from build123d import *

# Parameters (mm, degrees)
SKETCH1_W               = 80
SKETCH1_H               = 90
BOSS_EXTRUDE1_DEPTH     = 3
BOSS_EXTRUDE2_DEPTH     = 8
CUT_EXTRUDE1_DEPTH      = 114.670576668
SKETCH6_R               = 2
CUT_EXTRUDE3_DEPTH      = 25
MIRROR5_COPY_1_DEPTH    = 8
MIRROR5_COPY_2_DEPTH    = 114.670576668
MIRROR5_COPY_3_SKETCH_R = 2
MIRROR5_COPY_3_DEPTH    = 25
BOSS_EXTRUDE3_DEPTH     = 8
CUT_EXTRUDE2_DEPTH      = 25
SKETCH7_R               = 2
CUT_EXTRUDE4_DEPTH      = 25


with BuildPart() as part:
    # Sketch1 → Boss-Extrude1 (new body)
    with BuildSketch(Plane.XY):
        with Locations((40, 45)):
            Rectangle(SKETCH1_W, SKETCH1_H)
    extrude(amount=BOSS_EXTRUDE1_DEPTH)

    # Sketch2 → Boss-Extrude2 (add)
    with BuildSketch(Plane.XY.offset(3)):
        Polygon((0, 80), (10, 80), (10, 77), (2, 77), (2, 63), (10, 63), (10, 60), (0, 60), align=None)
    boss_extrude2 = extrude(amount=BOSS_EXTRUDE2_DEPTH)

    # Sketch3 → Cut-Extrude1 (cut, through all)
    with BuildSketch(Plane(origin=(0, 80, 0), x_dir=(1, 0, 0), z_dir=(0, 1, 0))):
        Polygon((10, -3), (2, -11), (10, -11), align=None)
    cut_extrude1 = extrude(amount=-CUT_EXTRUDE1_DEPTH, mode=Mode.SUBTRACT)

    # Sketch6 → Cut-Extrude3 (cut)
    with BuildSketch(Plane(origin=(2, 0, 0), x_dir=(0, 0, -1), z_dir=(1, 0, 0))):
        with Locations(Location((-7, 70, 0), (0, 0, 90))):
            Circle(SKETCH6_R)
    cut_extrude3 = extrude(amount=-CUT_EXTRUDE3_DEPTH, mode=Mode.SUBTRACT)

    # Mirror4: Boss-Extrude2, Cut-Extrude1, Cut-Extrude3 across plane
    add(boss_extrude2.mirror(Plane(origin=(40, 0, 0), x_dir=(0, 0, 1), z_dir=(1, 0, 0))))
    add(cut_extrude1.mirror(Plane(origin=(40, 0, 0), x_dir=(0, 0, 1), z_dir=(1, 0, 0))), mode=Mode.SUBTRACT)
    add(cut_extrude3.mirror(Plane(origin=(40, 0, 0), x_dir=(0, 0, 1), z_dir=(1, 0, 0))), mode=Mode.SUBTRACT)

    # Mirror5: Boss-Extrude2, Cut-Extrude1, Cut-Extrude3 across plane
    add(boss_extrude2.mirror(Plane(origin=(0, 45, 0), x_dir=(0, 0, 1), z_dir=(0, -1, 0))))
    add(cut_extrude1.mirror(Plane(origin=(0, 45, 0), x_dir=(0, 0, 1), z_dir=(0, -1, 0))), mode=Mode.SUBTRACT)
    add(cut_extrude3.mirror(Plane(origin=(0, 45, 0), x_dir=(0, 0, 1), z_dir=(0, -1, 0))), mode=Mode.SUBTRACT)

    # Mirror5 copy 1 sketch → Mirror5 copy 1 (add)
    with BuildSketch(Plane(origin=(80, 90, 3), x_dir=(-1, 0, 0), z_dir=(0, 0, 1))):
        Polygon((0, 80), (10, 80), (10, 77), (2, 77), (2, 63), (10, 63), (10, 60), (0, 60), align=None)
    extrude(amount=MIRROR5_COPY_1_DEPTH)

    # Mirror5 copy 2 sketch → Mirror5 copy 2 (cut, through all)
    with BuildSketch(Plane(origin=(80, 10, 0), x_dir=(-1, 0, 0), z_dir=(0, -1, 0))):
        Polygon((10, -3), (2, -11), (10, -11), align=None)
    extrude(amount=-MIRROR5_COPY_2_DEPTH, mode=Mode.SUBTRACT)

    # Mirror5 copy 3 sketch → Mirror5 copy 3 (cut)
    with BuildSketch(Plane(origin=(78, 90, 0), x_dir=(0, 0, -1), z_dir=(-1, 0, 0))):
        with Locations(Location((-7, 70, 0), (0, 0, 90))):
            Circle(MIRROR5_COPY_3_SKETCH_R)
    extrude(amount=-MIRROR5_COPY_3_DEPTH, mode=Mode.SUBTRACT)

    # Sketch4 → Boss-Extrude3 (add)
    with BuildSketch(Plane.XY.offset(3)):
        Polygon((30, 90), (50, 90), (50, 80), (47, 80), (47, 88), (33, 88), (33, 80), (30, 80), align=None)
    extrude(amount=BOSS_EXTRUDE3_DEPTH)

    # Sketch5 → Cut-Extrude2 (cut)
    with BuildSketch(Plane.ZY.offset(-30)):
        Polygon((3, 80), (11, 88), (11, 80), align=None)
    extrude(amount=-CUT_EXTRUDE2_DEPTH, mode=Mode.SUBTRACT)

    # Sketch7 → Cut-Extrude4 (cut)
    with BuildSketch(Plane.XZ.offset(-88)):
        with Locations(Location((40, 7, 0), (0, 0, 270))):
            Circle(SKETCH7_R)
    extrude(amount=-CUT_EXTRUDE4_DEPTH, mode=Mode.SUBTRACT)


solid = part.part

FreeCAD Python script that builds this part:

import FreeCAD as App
import Part
import Sketcher

V = App.Vector
Q = App.Units.Quantity


def add_polygon(sketch, points):
    """Adds a closed chain of lines whose ends are joined by coincident constraints."""
    first, n = sketch.GeometryCount, len(points)
    for a, b in zip(points, points[1:] + points[:1]):
        sketch.addGeometry(Part.LineSegment(App.Vector(*a, 0), App.Vector(*b, 0)), False)
    for i in range(n):
        sketch.addConstraint(Sketcher.Constraint("Coincident", first + i, 2, first + (i + 1) % n, 1))

doc = App.newDocument("Part")
params = doc.addObject("Spreadsheet::Sheet", "Params")
for row, (alias, value) in enumerate([
    ("sketch1_width", "80 mm"),
    ("sketch1_height", "90 mm"),
    ("pad1_length", "3 mm"),
    ("sketch2_width", "10 mm"),
    ("sketch2_width2", "8 mm"),
    ("sketch2_height", "20 mm"),
    ("sketch2_height2", "3 mm"),
    ("pad2_length", "8 mm"),
    ("sketch3_width", "8 mm"),
    ("sketch4_diameter", "4 mm"),
    ("pocket2_length", "25 mm"),
    ("sketch5_width", "10 mm"),
    ("sketch5_width2", "8 mm"),
    ("sketch5_height", "20 mm"),
    ("sketch5_height2", "3 mm"),
    ("pad3_length", "8 mm"),
    ("sketch6_width", "8 mm"),
    ("sketch7_diameter", "4 mm"),
    ("pocket4_length", "25 mm"),
    ("sketch8_width", "20 mm"),
    ("sketch8_width2", "3 mm"),
    ("sketch8_height", "10 mm"),
    ("sketch8_height2", "8 mm"),
    ("pad4_length", "8 mm"),
    ("sketch9_width", "8 mm"),
    ("pocket5_length", "25 mm"),
    ("sketch10_diameter", "4 mm"),
    ("pocket6_length", "25 mm"),
], start=1):
    params.set(f"A{row}", alias)
    params.set(f"B{row}", "=" + value)
    params.setAlias(f"B{row}", alias)

body = doc.addObject("PartDesign::Body", "Body")

sketch1 = body.newObject("Sketcher::SketchObject", "Sketch")
sketch1.AttachmentSupport = (doc.getObject("XY_Plane"), [""])
sketch1.MapMode = "FlatFace"
add_polygon(sketch1, [(0, 90), (0, 0), (80, 0), (80, 90)])
sketch1.addConstraint([
    Sketcher.Constraint("Vertical", 0),
    Sketcher.Constraint("Horizontal", 1),
    Sketcher.Constraint("Vertical", 2),
    Sketcher.Constraint("Horizontal", 3),
    Sketcher.Constraint("Coincident", 0, 2, -1, 1),
    Sketcher.Constraint("DistanceX", 1, 1, 1, 2, Q("80 mm")),
    Sketcher.Constraint("DistanceY", 0, 2, 0, 1, Q("90 mm")),
])
sketch1.setExpression("Constraints[9]", "Params.sketch1_width")
sketch1.setExpression("Constraints[10]", "Params.sketch1_height")
pad1 = body.newObject("PartDesign::Pad", "Pad")
pad1.Profile = sketch1
pad1.setExpression("Length", "Params.pad1_length")

sketch2 = body.newObject("Sketcher::SketchObject", "Sketch001")
sketch2.AttachmentSupport = (doc.getObject("XY_Plane"), [""])
sketch2.MapMode = "FlatFace"
sketch2.AttachmentOffset = App.Placement(V(0, 0, 3), App.Rotation())
add_polygon(sketch2, [(10, 80), (0, 80), (0, 60), (10, 60), (10, 63), (2, 63), (2, 77), (10, 77)])
sketch2.addConstraint([
    Sketcher.Constraint("Horizontal", 0),
    Sketcher.Constraint("Vertical", 1),
    Sketcher.Constraint("Horizontal", 2),
    Sketcher.Constraint("Vertical", 3),
    Sketcher.Constraint("Horizontal", 4),
    Sketcher.Constraint("Vertical", 5),
    Sketcher.Constraint("Horizontal", 6),
    Sketcher.Constraint("Vertical", 7),
    Sketcher.Constraint("PointOnObject", 0, 2, -2),
    Sketcher.Constraint("Vertical", 3, 2, 6, 2),
    Sketcher.Constraint("Equal", 3, 7),
    Sketcher.Constraint("DistanceX", 0, 2, 0, 1, Q("10 mm")),
    Sketcher.Constraint("DistanceX", 4, 2, 4, 1, Q("8 mm")),
    Sketcher.Constraint("DistanceY", 1, 2, 1, 1, Q("20 mm")),
    Sketcher.Constraint("DistanceY", 3, 1, 3, 2, Q("3 mm")),
    Sketcher.Constraint("DistanceY", -1, 1, 0, 2, Q("80 mm")),
])
sketch2.setExpression("Constraints[19]", "Params.sketch2_width")
sketch2.setExpression("Constraints[20]", "Params.sketch2_width2")
sketch2.setExpression("Constraints[21]", "Params.sketch2_height")
sketch2.setExpression("Constraints[22]", "Params.sketch2_height2")
pad2 = body.newObject("PartDesign::Pad", "Pad001")
pad2.Profile = sketch2
pad2.setExpression("Length", "Params.pad2_length")

sketch3 = body.newObject("Sketcher::SketchObject", "Sketch002")
sketch3.AttachmentSupport = (doc.getObject("XZ_Plane"), [""])
sketch3.MapMode = "FlatFace"
sketch3.AttachmentOffset = App.Placement(V(0, 0, -80), App.Rotation())
add_polygon(sketch3, [(10, 3), (2, 11), (10, 11)])
sketch3.addConstraint([
    Sketcher.Constraint("Horizontal", 1),
    Sketcher.Constraint("Vertical", 2),
    Sketcher.Constraint("Equal", 1, 2),
    Sketcher.Constraint("DistanceX", 1, 1, 1, 2, Q("8 mm")),
    Sketcher.Constraint("DistanceX", -1, 1, 0, 2, Q("2 mm")),
    Sketcher.Constraint("DistanceY", -1, 1, 0, 2, Q("11 mm")),
])
sketch3.setExpression("Constraints[6]", "Params.sketch3_width")
pocket1 = body.newObject("PartDesign::Pocket", "Pocket")
pocket1.Profile = sketch3
pocket1.Type = "ThroughAll"
pocket1.Reversed = True

sketch4 = body.newObject("Sketcher::SketchObject", "Sketch003")
sketch4.AttachmentSupport = (doc.getObject("YZ_Plane"), [""])
sketch4.MapMode = "FlatFace"
sketch4.AttachmentOffset = App.Placement(V(0, 0, 2), App.Rotation())
sketch4.addGeometry(Part.Circle(V(70, 7, 0), V(0, 0, 1), 2), False)
sketch4.addConstraint([
    Sketcher.Constraint("Diameter", 0, Q("4 mm")),
    Sketcher.Constraint("DistanceX", -1, 1, 0, 3, Q("70 mm")),
    Sketcher.Constraint("DistanceY", -1, 1, 0, 3, Q("7 mm")),
])
sketch4.setExpression("Constraints[0]", "Params.sketch4_diameter")
pocket2 = body.newObject("PartDesign::Pocket", "Pocket001")
pocket2.Profile = sketch4
pocket2.setExpression("Length", "Params.pocket2_length")
doc.recompute()

datumplane = body.newObject("PartDesign::Plane", "DatumPlane")
datumplane.AttachmentSupport = (doc.getObject("YZ_Plane"), [""])
datumplane.MapMode = "FlatFace"
datumplane.AttachmentOffset = App.Placement(V(0, 0, 40), App.Rotation())
mirrored = body.newObject("PartDesign::Mirrored", "Mirrored")
mirrored.Originals = [pad2, pocket1, pocket2]
mirrored.MirrorPlane = (datumplane, [""])
body.Tip = mirrored
doc.recompute()

datumplane2 = body.newObject("PartDesign::Plane", "DatumPlane001")
datumplane2.AttachmentSupport = (doc.getObject("XZ_Plane"), [""])
datumplane2.MapMode = "FlatFace"
datumplane2.AttachmentOffset = App.Placement(V(0, 0, -45), App.Rotation())
mirrored2 = body.newObject("PartDesign::Mirrored", "Mirrored001")
mirrored2.Originals = [pad2, pocket1, pocket2]
mirrored2.MirrorPlane = (datumplane2, [""])
body.Tip = mirrored2

sketch5 = body.newObject("Sketcher::SketchObject", "Sketch004")
sketch5.AttachmentSupport = (doc.getObject("XY_Plane"), [""])
sketch5.MapMode = "FlatFace"
sketch5.AttachmentOffset = App.Placement(V(0, 0, 3), App.Rotation())
add_polygon(sketch5, [(70, 10), (80, 10), (80, 30), (70, 30), (70, 27), (78, 27), (78, 13), (70, 13)])
sketch5.addConstraint([
    Sketcher.Constraint("Horizontal", 0),
    Sketcher.Constraint("Vertical", 1),
    Sketcher.Constraint("Horizontal", 2),
    Sketcher.Constraint("Vertical", 3),
    Sketcher.Constraint("Horizontal", 4),
    Sketcher.Constraint("Vertical", 5),
    Sketcher.Constraint("Horizontal", 6),
    Sketcher.Constraint("Vertical", 7),
    Sketcher.Constraint("Vertical", 3, 2, 6, 2),
    Sketcher.Constraint("Equal", 3, 7),
    Sketcher.Constraint("DistanceX", 0, 1, 0, 2, Q("10 mm")),
    Sketcher.Constraint("DistanceX", 4, 1, 4, 2, Q("8 mm")),
    Sketcher.Constraint("DistanceY", 1, 1, 1, 2, Q("20 mm")),
    Sketcher.Constraint("DistanceY", 3, 2, 3, 1, Q("3 mm")),
    Sketcher.Constraint("DistanceX", -1, 1, 0, 2, Q("80 mm")),
    Sketcher.Constraint("DistanceY", -1, 1, 0, 2, Q("10 mm")),
])
sketch5.setExpression("Constraints[18]", "Params.sketch5_width")
sketch5.setExpression("Constraints[19]", "Params.sketch5_width2")
sketch5.setExpression("Constraints[20]", "Params.sketch5_height")
sketch5.setExpression("Constraints[21]", "Params.sketch5_height2")
pad3 = body.newObject("PartDesign::Pad", "Pad002")
pad3.Profile = sketch5
pad3.setExpression("Length", "Params.pad3_length")

sketch6 = body.newObject("Sketcher::SketchObject", "Sketch005")
sketch6.AttachmentSupport = (doc.getObject("XZ_Plane"), [""])
sketch6.MapMode = "FlatFace"
sketch6.AttachmentOffset = App.Placement(V(0, 0, -10), App.Rotation())
add_polygon(sketch6, [(70, 3), (78, 11), (70, 11)])
sketch6.addConstraint([
    Sketcher.Constraint("Horizontal", 1),
    Sketcher.Constraint("Vertical", 2),
    Sketcher.Constraint("Equal", 1, 2),
    Sketcher.Constraint("DistanceX", 1, 2, 1, 1, Q("8 mm")),
    Sketcher.Constraint("DistanceX", -1, 1, 0, 2, Q("78 mm")),
    Sketcher.Constraint("DistanceY", -1, 1, 0, 2, Q("11 mm")),
])
sketch6.setExpression("Constraints[6]", "Params.sketch6_width")
pocket3 = body.newObject("PartDesign::Pocket", "Pocket002")
pocket3.Profile = sketch6
pocket3.Type = "ThroughAll"

sketch7 = body.newObject("Sketcher::SketchObject", "Sketch006")
sketch7.AttachmentSupport = (doc.getObject("YZ_Plane"), [""])
sketch7.MapMode = "FlatFace"
sketch7.AttachmentOffset = App.Placement(V(0, 0, 78), App.Rotation())
sketch7.addGeometry(Part.Circle(V(20, 7, 0), V(0, 0, 1), 2), False)
sketch7.addConstraint([
    Sketcher.Constraint("Diameter", 0, Q("4 mm")),
    Sketcher.Constraint("DistanceX", -1, 1, 0, 3, Q("20 mm")),
    Sketcher.Constraint("DistanceY", -1, 1, 0, 3, Q("7 mm")),
])
sketch7.setExpression("Constraints[0]", "Params.sketch7_diameter")
pocket4 = body.newObject("PartDesign::Pocket", "Pocket003")
pocket4.Profile = sketch7
pocket4.setExpression("Length", "Params.pocket4_length")
pocket4.Reversed = True

sketch8 = body.newObject("Sketcher::SketchObject", "Sketch007")
sketch8.AttachmentSupport = (doc.getObject("XY_Plane"), [""])
sketch8.MapMode = "FlatFace"
sketch8.AttachmentOffset = App.Placement(V(0, 0, 3), App.Rotation())
add_polygon(sketch8, [(50, 90), (30, 90), (30, 80), (33, 80), (33, 88), (47, 88), (47, 80), (50, 80)])
sketch8.addConstraint([
    Sketcher.Constraint("Horizontal", 0),
    Sketcher.Constraint("Vertical", 1),
    Sketcher.Constraint("Horizontal", 2),
    Sketcher.Constraint("Vertical", 3),
    Sketcher.Constraint("Horizontal", 4),
    Sketcher.Constraint("Vertical", 5),
    Sketcher.Constraint("Horizontal", 6),
    Sketcher.Constraint("Vertical", 7),
    Sketcher.Constraint("Horizontal", 2, 2, 5, 2),
    Sketcher.Constraint("Equal", 2, 6),
    Sketcher.Constraint("DistanceX", 0, 2, 0, 1, Q("20 mm")),
    Sketcher.Constraint("DistanceX", 2, 1, 2, 2, Q("3 mm")),
    Sketcher.Constraint("DistanceY", 1, 2, 1, 1, Q("10 mm")),
    Sketcher.Constraint("DistanceY", 3, 1, 3, 2, Q("8 mm")),
    Sketcher.Constraint("DistanceX", -1, 1, 0, 2, Q("30 mm")),
    Sketcher.Constraint("DistanceY", -1, 1, 0, 2, Q("90 mm")),
])
sketch8.setExpression("Constraints[18]", "Params.sketch8_width")
sketch8.setExpression("Constraints[19]", "Params.sketch8_width2")
sketch8.setExpression("Constraints[20]", "Params.sketch8_height")
sketch8.setExpression("Constraints[21]", "Params.sketch8_height2")
pad4 = body.newObject("PartDesign::Pad", "Pad003")
pad4.Profile = sketch8
pad4.setExpression("Length", "Params.pad4_length")

sketch9 = body.newObject("Sketcher::SketchObject", "Sketch008")
sketch9.AttachmentSupport = (doc.getObject("YZ_Plane"), [""])
sketch9.MapMode = "FlatFace"
sketch9.AttachmentOffset = App.Placement(V(0, 0, 30), App.Rotation())
add_polygon(sketch9, [(88, 11), (80, 3), (80, 11)])
sketch9.addConstraint([
    Sketcher.Constraint("Vertical", 1),
    Sketcher.Constraint("Horizontal", 2),
    Sketcher.Constraint("Equal", 2, 1),
    Sketcher.Constraint("DistanceX", 2, 1, 2, 2, Q("8 mm")),
    Sketcher.Constraint("DistanceX", -1, 1, 0, 2, Q("80 mm")),
    Sketcher.Constraint("DistanceY", -1, 1, 0, 2, Q("3 mm")),
])
sketch9.setExpression("Constraints[6]", "Params.sketch9_width")
pocket5 = body.newObject("PartDesign::Pocket", "Pocket004")
pocket5.Profile = sketch9
pocket5.setExpression("Length", "Params.pocket5_length")
pocket5.Reversed = True

sketch10 = body.newObject("Sketcher::SketchObject", "Sketch009")
sketch10.AttachmentSupport = (doc.getObject("XZ_Plane"), [""])
sketch10.MapMode = "FlatFace"
sketch10.AttachmentOffset = App.Placement(V(0, 0, -88), App.Rotation())
sketch10.addGeometry(Part.Circle(V(40, 7, 0), V(0, 0, 1), 2), False)
sketch10.addConstraint([
    Sketcher.Constraint("Diameter", 0, Q("4 mm")),
    Sketcher.Constraint("DistanceX", -1, 1, 0, 3, Q("40 mm")),
    Sketcher.Constraint("DistanceY", -1, 1, 0, 3, Q("7 mm")),
])
sketch10.setExpression("Constraints[0]", "Params.sketch10_diameter")
pocket6 = body.newObject("PartDesign::Pocket", "Pocket005")
pocket6.Profile = sketch10
pocket6.setExpression("Length", "Params.pocket6_length")

doc.recompute()
